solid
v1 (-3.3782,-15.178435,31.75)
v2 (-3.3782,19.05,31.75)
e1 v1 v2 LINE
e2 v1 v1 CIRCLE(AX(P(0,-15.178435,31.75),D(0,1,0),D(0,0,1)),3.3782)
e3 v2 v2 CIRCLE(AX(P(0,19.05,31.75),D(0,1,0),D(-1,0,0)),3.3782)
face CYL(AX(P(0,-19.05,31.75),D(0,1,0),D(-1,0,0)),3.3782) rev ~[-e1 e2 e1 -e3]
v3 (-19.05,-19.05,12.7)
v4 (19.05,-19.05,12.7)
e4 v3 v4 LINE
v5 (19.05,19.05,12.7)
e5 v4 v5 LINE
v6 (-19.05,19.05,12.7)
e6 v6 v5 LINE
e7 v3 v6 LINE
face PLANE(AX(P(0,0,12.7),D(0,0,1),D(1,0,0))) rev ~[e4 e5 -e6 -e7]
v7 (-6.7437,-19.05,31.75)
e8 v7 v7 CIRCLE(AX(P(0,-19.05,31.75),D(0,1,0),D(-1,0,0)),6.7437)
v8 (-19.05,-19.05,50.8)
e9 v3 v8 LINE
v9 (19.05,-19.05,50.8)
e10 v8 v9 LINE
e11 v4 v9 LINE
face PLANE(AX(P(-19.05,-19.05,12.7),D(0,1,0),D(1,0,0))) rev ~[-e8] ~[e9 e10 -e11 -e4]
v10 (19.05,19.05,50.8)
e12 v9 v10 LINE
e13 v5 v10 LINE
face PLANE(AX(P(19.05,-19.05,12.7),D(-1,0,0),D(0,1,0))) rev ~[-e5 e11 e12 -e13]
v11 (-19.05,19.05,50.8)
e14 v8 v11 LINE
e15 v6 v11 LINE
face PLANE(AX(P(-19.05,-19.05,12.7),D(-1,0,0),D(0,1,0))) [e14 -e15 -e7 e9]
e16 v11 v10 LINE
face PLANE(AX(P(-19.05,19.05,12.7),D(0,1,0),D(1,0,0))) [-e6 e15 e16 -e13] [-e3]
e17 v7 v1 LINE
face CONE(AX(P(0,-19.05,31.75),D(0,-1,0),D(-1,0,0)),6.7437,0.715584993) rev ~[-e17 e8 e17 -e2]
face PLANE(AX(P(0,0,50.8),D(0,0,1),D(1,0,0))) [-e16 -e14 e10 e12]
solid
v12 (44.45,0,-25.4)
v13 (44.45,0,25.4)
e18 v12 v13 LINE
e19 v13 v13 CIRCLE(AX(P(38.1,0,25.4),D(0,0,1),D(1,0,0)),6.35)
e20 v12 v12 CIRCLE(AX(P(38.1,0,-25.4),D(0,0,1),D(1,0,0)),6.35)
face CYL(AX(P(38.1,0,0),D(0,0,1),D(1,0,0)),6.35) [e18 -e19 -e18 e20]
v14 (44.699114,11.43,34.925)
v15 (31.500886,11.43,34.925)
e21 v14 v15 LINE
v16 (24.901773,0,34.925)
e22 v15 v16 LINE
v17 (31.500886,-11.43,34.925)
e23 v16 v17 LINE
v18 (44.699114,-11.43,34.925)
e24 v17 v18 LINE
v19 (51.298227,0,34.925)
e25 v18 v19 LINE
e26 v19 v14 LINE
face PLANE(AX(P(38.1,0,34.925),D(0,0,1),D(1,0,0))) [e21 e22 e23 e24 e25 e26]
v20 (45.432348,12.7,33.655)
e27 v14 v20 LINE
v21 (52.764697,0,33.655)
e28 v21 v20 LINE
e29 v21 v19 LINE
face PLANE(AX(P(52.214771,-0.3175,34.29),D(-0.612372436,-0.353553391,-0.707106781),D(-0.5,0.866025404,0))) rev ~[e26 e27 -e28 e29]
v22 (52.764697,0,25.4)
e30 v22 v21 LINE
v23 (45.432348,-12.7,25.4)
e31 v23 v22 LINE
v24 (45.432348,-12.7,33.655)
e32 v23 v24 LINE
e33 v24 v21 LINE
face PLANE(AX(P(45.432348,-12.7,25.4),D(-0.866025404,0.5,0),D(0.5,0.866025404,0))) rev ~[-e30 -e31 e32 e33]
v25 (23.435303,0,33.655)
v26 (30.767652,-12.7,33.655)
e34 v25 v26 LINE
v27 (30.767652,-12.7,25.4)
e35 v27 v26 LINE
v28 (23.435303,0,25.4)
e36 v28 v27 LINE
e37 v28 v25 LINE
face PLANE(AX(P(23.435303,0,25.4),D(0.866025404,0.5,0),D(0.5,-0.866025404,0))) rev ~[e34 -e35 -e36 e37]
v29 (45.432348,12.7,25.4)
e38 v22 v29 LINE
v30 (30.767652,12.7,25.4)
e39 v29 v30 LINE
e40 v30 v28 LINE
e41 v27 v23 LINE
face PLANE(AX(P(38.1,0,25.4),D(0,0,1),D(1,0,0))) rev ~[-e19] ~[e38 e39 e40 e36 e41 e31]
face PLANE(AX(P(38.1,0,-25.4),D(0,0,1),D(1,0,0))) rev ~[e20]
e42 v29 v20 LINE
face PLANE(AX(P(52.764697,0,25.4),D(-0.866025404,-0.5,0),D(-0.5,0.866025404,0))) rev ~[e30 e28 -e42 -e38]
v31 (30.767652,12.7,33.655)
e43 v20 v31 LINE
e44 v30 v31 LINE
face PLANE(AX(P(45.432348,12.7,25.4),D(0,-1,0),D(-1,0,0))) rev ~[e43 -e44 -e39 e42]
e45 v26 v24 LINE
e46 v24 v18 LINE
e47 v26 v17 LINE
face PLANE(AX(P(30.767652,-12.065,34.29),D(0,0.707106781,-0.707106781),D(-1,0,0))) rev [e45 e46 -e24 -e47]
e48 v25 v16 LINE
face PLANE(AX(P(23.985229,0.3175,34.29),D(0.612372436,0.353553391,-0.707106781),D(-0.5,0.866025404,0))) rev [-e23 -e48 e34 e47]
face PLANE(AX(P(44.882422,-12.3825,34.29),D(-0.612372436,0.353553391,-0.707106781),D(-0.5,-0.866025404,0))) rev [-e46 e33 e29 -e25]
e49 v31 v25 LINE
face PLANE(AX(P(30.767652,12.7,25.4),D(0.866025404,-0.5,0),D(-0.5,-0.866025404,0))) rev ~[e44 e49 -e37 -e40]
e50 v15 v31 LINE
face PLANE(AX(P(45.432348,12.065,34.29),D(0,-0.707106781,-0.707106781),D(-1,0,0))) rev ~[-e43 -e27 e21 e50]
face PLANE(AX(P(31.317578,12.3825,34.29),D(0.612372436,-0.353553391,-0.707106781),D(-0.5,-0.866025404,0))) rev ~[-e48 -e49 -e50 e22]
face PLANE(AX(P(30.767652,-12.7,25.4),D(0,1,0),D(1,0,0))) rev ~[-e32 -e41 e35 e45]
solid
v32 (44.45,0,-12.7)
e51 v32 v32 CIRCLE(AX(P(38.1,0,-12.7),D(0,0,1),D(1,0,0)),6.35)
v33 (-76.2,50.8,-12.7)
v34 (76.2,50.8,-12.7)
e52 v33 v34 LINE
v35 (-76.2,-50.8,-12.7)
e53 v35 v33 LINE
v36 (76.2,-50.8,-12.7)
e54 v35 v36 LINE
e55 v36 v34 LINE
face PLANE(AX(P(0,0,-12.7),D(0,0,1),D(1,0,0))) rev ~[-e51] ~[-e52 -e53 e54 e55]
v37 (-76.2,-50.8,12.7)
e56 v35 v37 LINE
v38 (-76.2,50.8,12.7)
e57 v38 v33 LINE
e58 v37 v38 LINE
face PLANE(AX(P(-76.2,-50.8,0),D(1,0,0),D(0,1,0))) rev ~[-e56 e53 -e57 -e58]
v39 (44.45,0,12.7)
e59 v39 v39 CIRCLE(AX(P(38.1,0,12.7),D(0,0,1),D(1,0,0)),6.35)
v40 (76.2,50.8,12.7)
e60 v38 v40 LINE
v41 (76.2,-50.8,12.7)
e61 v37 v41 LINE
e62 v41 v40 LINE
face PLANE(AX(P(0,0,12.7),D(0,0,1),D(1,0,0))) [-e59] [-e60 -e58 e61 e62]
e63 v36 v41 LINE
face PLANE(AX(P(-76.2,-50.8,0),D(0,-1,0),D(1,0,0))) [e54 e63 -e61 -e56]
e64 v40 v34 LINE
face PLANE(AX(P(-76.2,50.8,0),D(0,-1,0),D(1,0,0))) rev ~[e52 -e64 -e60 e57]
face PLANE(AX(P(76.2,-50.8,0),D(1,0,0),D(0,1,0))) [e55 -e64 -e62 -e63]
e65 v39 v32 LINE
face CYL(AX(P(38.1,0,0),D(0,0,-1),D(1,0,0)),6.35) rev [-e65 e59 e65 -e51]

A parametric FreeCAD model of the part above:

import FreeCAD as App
import Part
import Sketcher
Q = App.Units.Quantity


def edges_at(feature, points):
    """Names of the edges that pass closest to the given points."""
    edges = feature.Shape.Edges
    near = lambda p: min(range(len(edges)), key=lambda i: edges[i].distToShape(Part.Vertex(*p))[0])
    return sorted({f"Edge{near(p) + 1}" for p in points})


def add_polygon(sketch, points):
    """Adds a closed chain of lines whose ends are joined by coincident constraints."""
    first, n = sketch.GeometryCount, len(points)
    for a, b in zip(points, points[1:] + points[:1]):
        sketch.addGeometry(Part.LineSegment(App.Vector(*a, 0), App.Vector(*b, 0)), False)
    for i in range(n):
        sketch.addConstraint(Sketcher.Constraint("Coincident", first + i, 2, first + (i + 1) % n, 1))

doc = App.newDocument("Part")
body = doc.addObject("PartDesign::Body", "Body")

# Sketch on XY plane
sketch1 = doc.addObject("Sketcher::SketchObject", "Sketch")
body.addObject(sketch1)
sketch1.AttachmentSupport = (doc.XY_Plane, [""])
sketch1.MapMode = "FlatFace"
add_polygon(sketch1, [(-76.2, 50.8), (-76.2, -50.8), (76.2, -50.8), (76.2, 50.8)])  # lines 0-3
sketch1.addGeometry(Part.Circle(App.Vector(38.1, 0, 0), App.Vector(0, 0, 1), 6.35), False)  # 4
sketch1.addConstraint([
    Sketcher.Constraint("Vertical", 0),
    Sketcher.Constraint("Horizontal", 1),
    Sketcher.Constraint("Vertical", 2),
    Sketcher.Constraint("Horizontal", 3),
    Sketcher.Constraint("Symmetric", 0, 2, 2, 2, -1, 1),
    Sketcher.Constraint("PointOnObject", 4, 3, -1),
    Sketcher.Constraint("Diameter", 4, Q("0.5 in")),
    Sketcher.Constraint("DistanceX", 1, 1, 1, 2, Q("6 in")),
    Sketcher.Constraint("DistanceY", 0, 2, 0, 1, Q("4 in")),
    Sketcher.Constraint("DistanceX", -1, 1, 4, 3, Q("1.5 in")),
])
pad1 = doc.addObject("PartDesign::Pad", "Pad")
body.addObject(pad1)
pad1.Profile = sketch1
pad1.Length = Q("1 in")
pad1.Midplane = True
body2 = doc.addObject("PartDesign::Body", "Body001")

# Sketch on XY plane
sketch2 = doc.addObject("Sketcher::SketchObject", "Sketch001")
body2.addObject(sketch2)
sketch2.AttachmentSupport = (doc.getObject("XY_Plane001"), [""])
sketch2.MapMode = "FlatFace"
sketch2.AttachmentOffset = App.Placement(App.Vector(0, 0, 0.5 * 25.4), App.Rotation())
add_polygon(sketch2, [(-19.05, 19.05), (-19.05, -19.05), (19.05, -19.05), (19.05, 19.05)])  # lines 0-3
sketch2.addConstraint([
    Sketcher.Constraint("Vertical", 0),
    Sketcher.Constraint("Horizontal", 1),
    Sketcher.Constraint("Vertical", 2),
    Sketcher.Constraint("Horizontal", 3),
    Sketcher.Constraint("Symmetric", 0, 2, 2, 2, -1, 1),
    Sketcher.Constraint("Equal", 3, 0),
    Sketcher.Constraint("DistanceX", 1, 1, 1, 2, Q("1.5 in")),
])
pad2 = doc.addObject("PartDesign::Pad", "Pad001")
body2.addObject(pad2)
pad2.Profile = sketch2
pad2.Length = Q("1.5 in")

# Sketch on XZ plane
sketch3 = doc.addObject("Sketcher::SketchObject", "Sketch002")
body2.addObject(sketch3)
sketch3.AttachmentSupport = (doc.getObject("XZ_Plane001"), [""])
sketch3.MapMode = "FlatFace"
sketch3.AttachmentOffset = App.Placement(App.Vector(0, 0, 0.75 * 25.4), App.Rotation())
sketch3.addGeometry(Part.Circle(App.Vector(0, 31.75, 0), App.Vector(0, 0, 1), 3.3782), False)
sketch3.addConstraint([
    Sketcher.Constraint("PointOnObject", 0, 3, -2),
    Sketcher.Constraint("Diameter", 0, Q("0.266 in")),
    Sketcher.Constraint("DistanceY", -1, 1, 0, 3, Q("1.25 in")),
])
doc.recompute()
hole = doc.addObject("PartDesign::Hole", "Hole")
body2.addObject(hole)
hole.Profile = sketch3
hole.ThreadType = "None"
hole.Diameter = Q("0.266 in")
hole.DepthType = "ThroughAll"
hole.HoleCutType = "Countersink"
hole.HoleCutDiameter = Q("0.531 in")
hole.HoleCutCountersinkAngle = 82
body3 = doc.addObject("PartDesign::Body", "Body002")

# Sketch on XY plane
sketch4 = doc.addObject("Sketcher::SketchObject", "Sketch003")
body3.addObject(sketch4)
sketch4.AttachmentSupport = (doc.getObject("XY_Plane002"), [""])
sketch4.MapMode = "FlatFace"
sketch4.addGeometry(Part.Circle(App.Vector(38.1, 0, 0), App.Vector(0, 0, 1), 6.35), False)
sketch4.addConstraint([
    Sketcher.Constraint("PointOnObject", 0, 3, -1),
    Sketcher.Constraint("Diameter", 0, Q("0.5 in")),
    Sketcher.Constraint("DistanceX", -1, 1, 0, 3, Q("1.5 in")),
])
pad3 = doc.addObject("PartDesign::Pad", "Pad002")
body3.addObject(pad3)
pad3.Profile = sketch4
pad3.Length = Q("2 in")
pad3.Midplane = True

# Sketch on XY plane
sketch5 = doc.addObject("Sketcher::SketchObject", "Sketch004")
body3.addObject(sketch5)
sketch5.AttachmentSupport = (doc.getObject("XY_Plane002"), [""])
sketch5.MapMode = "FlatFace"
sketch5.AttachmentOffset = App.Placement(App.Vector(0, 0, 1 * 25.4), App.Rotation())
add_polygon(sketch5, [(30.767652, -12.7), (45.432348, -12.7), (52.764697, 0), (45.432348, 12.7), (30.767652, 12.7), (23.435303, 0)])  # lines 0-5
sketch5.addConstraint([
    Sketcher.Constraint("Horizontal", 0),
    Sketcher.Constraint("Horizontal", 3),
    Sketcher.Constraint("Symmetric", 0, 2, 2, 2, -1),
    Sketcher.Constraint("PointOnObject", 1, 2, -1),
    Sketcher.Constraint("PointOnObject", 4, 2, -1),
    Sketcher.Constraint("Parallel", 1, 4),
    Sketcher.Constraint("Parallel", 2, 5),
    Sketcher.Constraint("Angle", 1, Q("60 deg")),
    Sketcher.Constraint("DistanceY", 0, 2, 2, 2, Q("1 in")),
    Sketcher.Constraint("DistanceX", 0, 1, 0, 2, Q("14.664697 mm")),
    Sketcher.Constraint("DistanceX", -1, 1, 0, 2, Q("45.432348 mm")),
])
pad4 = doc.addObject("PartDesign::Pad", "Pad003")
body3.addObject(pad4)
pad4.Profile = sketch5
pad4.Length = Q("0.375 in")
doc.recompute()

chamfer = doc.addObject("PartDesign::Chamfer", "Chamfer")
body3.addObject(chamfer)
chamfer.Base = (pad4, edges_at(pad4, [
    (27.101, -6.35, 34.925),
    (38.1, -12.7, 34.925),
    (49.099, -6.35, 34.925),
    (49.099, 6.35, 34.925),
    (38.1, 12.7, 34.925),
    (27.101, 6.35, 34.925),
]))
chamfer.Size = Q("0.05 in")

doc.recompute()
